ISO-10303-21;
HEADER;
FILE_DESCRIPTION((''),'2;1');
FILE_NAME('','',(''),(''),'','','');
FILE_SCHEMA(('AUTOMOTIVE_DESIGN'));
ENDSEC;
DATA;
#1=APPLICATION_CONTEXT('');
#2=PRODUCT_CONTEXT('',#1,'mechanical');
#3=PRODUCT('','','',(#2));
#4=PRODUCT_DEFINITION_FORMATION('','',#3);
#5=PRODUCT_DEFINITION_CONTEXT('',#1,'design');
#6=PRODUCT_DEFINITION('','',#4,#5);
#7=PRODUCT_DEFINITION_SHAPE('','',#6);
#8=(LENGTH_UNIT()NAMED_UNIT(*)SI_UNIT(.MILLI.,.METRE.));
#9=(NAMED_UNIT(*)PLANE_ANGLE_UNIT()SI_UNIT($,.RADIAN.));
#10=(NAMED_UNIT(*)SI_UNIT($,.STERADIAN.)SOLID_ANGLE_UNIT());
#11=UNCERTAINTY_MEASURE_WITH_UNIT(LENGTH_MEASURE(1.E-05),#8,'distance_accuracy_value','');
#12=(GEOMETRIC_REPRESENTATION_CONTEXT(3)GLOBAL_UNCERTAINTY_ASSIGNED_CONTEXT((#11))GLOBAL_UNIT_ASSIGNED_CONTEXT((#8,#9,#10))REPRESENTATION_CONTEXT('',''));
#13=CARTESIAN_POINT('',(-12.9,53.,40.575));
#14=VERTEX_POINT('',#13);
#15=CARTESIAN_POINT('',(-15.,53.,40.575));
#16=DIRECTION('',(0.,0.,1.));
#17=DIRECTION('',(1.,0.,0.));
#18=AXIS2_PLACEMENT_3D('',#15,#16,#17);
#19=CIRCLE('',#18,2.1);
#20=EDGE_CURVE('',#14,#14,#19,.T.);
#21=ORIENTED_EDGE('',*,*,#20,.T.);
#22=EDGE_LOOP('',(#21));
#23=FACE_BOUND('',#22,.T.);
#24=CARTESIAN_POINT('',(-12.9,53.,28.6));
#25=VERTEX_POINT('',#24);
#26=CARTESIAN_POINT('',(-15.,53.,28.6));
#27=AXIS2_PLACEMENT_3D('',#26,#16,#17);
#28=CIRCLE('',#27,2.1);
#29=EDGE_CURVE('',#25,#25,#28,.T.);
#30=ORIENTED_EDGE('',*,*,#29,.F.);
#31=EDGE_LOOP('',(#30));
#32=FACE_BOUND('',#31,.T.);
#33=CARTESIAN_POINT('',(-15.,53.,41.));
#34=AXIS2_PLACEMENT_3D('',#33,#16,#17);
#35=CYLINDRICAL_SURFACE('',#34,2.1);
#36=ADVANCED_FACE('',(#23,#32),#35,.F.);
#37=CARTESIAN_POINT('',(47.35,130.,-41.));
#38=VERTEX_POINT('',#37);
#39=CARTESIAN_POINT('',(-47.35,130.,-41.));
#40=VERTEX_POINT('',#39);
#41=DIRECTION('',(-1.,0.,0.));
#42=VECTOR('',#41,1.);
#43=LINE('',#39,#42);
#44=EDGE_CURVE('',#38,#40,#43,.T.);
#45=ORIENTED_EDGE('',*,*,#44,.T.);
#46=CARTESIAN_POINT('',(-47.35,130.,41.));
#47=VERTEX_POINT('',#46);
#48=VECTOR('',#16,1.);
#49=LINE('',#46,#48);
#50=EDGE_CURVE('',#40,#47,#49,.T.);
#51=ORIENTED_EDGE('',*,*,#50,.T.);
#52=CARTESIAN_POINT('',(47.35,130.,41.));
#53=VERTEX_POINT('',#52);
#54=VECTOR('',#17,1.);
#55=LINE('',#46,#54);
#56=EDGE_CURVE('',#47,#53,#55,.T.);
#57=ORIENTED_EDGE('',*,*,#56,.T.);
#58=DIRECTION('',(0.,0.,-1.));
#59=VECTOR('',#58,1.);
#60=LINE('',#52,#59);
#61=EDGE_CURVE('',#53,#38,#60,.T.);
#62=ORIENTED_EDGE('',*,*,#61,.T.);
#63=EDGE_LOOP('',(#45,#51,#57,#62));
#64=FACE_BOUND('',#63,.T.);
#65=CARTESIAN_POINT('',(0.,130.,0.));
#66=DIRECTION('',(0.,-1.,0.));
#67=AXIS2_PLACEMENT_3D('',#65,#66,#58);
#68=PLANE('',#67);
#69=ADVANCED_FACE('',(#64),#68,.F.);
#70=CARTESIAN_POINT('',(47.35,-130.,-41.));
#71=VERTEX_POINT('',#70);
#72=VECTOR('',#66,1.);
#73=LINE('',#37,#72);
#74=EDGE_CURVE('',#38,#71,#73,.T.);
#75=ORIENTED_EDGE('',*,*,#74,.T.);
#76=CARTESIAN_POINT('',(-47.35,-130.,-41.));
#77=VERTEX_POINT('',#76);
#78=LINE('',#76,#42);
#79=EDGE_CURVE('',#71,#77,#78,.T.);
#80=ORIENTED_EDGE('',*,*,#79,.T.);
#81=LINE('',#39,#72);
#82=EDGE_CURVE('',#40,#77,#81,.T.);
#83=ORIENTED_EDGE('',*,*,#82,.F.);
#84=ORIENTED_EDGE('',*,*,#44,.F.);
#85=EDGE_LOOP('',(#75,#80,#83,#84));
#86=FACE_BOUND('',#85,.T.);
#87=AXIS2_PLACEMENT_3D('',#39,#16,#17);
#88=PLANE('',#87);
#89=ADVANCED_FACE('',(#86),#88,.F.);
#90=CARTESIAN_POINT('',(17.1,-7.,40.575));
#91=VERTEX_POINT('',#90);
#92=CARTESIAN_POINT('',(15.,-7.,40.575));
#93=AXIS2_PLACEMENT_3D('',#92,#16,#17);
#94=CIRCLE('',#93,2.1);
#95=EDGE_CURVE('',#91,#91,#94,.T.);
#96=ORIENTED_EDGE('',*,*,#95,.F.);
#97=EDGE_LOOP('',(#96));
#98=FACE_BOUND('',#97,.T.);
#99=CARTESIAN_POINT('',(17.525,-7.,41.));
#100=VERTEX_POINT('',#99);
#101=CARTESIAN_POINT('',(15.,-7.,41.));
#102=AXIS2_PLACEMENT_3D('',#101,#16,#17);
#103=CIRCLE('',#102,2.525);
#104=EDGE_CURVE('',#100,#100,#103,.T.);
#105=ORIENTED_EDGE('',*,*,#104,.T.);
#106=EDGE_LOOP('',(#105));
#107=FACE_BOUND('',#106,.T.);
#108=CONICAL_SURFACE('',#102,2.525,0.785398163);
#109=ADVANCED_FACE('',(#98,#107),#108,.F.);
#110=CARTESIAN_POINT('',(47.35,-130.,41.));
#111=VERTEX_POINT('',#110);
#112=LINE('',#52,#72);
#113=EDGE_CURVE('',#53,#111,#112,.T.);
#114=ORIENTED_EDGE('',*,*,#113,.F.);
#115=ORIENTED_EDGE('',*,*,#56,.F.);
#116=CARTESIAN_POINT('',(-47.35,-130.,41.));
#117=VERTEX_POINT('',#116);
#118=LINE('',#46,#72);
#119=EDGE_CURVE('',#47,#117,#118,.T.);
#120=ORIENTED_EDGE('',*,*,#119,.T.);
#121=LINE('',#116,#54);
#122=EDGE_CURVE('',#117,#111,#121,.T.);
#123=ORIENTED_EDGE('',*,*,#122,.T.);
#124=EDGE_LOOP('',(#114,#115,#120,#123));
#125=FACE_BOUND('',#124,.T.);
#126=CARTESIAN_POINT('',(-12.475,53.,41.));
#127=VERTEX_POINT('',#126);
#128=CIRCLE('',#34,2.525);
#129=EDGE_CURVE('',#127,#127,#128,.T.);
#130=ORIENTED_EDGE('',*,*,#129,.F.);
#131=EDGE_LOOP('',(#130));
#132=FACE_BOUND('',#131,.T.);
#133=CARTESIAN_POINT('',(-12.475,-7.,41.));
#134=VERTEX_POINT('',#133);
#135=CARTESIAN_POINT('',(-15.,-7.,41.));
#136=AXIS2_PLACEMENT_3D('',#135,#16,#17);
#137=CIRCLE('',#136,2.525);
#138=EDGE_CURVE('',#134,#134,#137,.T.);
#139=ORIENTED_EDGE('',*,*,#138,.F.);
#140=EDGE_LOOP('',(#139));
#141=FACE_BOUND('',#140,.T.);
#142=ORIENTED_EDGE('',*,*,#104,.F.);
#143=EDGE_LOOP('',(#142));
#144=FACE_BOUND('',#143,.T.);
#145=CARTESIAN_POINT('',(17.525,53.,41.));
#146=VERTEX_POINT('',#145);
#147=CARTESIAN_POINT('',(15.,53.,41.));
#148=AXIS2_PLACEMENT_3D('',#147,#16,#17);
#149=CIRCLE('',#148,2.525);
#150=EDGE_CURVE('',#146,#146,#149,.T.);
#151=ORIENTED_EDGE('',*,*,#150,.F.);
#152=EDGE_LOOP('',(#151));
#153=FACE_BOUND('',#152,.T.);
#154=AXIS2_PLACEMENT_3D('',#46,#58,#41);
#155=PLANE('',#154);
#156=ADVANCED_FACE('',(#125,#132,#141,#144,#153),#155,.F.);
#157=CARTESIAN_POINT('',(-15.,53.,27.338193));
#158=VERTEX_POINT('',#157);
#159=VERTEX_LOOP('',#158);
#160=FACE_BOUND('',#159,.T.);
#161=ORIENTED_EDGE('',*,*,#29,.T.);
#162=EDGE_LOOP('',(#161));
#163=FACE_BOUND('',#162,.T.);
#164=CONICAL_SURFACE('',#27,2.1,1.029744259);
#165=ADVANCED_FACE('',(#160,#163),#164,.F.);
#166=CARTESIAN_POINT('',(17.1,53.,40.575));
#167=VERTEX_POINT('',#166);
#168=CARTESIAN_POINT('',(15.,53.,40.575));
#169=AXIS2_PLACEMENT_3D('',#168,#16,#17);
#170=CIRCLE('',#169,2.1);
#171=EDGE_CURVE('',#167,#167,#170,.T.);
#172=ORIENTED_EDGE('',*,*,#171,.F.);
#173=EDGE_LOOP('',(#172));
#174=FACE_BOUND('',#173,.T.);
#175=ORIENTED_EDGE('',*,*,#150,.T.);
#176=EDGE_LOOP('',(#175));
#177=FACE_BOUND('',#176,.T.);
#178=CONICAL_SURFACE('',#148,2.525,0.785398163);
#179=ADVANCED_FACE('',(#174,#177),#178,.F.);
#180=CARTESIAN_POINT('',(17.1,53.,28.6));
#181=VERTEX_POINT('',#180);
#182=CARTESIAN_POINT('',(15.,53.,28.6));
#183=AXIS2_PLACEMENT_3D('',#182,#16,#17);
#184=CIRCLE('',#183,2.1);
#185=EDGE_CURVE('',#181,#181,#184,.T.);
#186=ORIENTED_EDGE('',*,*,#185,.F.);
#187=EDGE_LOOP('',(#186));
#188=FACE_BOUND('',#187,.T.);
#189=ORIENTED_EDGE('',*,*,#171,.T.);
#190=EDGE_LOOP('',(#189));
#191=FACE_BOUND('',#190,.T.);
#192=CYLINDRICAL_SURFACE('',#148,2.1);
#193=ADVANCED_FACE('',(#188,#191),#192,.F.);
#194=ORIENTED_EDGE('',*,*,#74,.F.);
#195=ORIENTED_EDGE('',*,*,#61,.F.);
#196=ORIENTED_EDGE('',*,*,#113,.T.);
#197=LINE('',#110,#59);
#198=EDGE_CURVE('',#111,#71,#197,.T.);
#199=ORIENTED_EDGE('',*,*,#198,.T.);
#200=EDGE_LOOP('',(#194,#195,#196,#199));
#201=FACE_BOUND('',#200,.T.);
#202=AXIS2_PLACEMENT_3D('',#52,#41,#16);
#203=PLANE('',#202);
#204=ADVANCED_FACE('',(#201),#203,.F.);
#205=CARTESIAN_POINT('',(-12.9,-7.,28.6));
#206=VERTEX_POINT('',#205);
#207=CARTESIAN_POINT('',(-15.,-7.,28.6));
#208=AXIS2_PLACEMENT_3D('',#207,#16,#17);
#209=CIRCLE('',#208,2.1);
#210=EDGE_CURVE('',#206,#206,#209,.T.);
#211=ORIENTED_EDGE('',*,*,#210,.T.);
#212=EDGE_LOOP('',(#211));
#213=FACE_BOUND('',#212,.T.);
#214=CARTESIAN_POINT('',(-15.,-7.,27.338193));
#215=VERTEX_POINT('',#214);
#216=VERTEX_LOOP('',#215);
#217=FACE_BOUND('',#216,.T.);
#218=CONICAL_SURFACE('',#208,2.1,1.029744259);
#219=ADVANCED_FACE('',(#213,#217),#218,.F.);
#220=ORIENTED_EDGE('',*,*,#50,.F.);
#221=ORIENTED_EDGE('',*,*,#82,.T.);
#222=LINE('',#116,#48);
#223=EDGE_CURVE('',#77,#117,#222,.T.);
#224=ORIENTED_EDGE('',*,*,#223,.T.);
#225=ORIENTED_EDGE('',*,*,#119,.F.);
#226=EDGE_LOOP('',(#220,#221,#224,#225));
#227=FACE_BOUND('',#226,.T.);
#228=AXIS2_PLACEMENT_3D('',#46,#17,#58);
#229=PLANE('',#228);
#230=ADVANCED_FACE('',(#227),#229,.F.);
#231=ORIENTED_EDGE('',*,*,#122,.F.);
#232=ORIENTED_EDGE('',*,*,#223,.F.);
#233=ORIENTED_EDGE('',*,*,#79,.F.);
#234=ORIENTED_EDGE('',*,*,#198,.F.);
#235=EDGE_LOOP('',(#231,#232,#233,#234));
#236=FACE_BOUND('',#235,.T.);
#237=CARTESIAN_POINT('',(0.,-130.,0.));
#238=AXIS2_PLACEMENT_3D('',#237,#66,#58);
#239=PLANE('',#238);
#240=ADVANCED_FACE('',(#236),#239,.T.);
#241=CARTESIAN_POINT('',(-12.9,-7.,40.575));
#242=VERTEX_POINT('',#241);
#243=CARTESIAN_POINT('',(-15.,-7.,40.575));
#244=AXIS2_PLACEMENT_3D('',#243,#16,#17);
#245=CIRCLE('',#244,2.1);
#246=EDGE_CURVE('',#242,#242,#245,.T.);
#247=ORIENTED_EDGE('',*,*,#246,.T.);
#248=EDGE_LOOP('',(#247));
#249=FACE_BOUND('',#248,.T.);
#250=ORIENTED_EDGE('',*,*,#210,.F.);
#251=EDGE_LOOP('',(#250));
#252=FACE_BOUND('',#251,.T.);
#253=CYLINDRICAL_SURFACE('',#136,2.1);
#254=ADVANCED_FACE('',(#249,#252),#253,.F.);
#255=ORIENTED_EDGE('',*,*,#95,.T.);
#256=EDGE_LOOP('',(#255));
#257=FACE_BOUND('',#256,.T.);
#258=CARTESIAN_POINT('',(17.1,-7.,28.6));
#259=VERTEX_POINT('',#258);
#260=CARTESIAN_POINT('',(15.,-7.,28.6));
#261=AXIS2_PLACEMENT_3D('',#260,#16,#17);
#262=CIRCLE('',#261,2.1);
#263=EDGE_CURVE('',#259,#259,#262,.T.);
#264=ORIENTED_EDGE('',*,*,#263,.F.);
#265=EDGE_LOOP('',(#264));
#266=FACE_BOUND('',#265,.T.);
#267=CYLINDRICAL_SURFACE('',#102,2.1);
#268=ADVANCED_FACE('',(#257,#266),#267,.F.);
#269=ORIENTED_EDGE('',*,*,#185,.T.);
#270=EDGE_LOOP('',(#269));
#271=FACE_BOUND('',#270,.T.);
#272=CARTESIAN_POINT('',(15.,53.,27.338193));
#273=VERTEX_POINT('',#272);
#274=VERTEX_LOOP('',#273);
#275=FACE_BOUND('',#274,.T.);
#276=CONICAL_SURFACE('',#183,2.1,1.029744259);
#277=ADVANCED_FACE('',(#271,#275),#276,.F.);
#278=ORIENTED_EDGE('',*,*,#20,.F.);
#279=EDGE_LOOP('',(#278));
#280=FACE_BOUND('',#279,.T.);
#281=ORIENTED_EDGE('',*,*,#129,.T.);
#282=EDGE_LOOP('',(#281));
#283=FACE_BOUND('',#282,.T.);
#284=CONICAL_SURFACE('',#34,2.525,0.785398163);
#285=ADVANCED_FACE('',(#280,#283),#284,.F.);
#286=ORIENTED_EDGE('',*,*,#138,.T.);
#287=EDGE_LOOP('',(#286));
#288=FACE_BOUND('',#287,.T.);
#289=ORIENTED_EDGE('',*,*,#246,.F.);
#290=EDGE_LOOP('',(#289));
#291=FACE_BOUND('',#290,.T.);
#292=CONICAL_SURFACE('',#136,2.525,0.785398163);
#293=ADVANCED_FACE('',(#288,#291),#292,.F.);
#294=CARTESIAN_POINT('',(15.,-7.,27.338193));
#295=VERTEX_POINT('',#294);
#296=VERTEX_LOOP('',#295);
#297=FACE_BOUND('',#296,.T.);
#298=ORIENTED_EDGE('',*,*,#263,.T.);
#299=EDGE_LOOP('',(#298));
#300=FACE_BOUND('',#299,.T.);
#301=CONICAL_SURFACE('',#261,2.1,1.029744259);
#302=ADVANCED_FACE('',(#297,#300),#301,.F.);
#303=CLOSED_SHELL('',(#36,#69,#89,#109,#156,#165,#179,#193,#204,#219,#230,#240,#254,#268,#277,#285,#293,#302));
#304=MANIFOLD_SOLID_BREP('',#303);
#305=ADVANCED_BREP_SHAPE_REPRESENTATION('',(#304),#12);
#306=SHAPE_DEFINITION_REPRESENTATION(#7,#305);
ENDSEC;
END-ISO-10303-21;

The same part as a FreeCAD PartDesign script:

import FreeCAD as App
import Part
import Sketcher

V = App.Vector
Q = App.Units.Quantity

doc = App.newDocument("Part")
params = doc.addObject("Spreadsheet::Sheet", "Params")
for row, (alias, value) in enumerate([
    ("sketch1_height", "82 mm"),
    ("sketch1_width", "94.7 mm"),
    ("pad1_length", "260 mm"),
    ("sketch2_diameter", "4.2 mm"),
    ("hole_diameter", "4.2 mm"),
    ("hole_depth", "12.4 mm"),
    ("hole_csink_diameter", "5.05 mm"),
], start=1):
    params.set(f"A{row}", alias)
    params.set(f"B{row}", "=" + value)
    params.setAlias(f"B{row}", alias)

body = doc.addObject("PartDesign::Body", "Body")

# Sketch on XZ plane
sketch1 = doc.addObject("Sketcher::SketchObject", "Sketch")
body.addObject(sketch1)
sketch1.AttachmentSupport = (doc.XZ_Plane, [""])
sketch1.MapMode = "FlatFace"
sketch1.addGeometry(Part.LineSegment(V(-47.35, -41, 0), V(-47.35, 41, 0)), False)
sketch1.addGeometry(Part.LineSegment(V(-47.35, 41, 0), V(47.35, 41, 0)), False)
sketch1.addGeometry(Part.LineSegment(V(47.35, 41, 0), V(47.35, -41, 0)), False)
sketch1.addGeometry(Part.LineSegment(V(47.35, -41, 0), V(-47.35, -41, 0)), False)
sketch1.addConstraint(Sketcher.Constraint("Coincident", 0, 2, 1, 1))
sketch1.addConstraint(Sketcher.Constraint("Coincident", 1, 2, 2, 1))
sketch1.addConstraint(Sketcher.Constraint("Coincident", 2, 2, 3, 1))
sketch1.addConstraint(Sketcher.Constraint("Coincident", 3, 2, 0, 1))
sketch1.addConstraint(Sketcher.Constraint("Vertical", 0))
sketch1.addConstraint(Sketcher.Constraint("Horizontal", 1))
sketch1.addConstraint(Sketcher.Constraint("Vertical", 2))
sketch1.addConstraint(Sketcher.Constraint("Horizontal", 3))
sketch1.addConstraint(Sketcher.Constraint("Symmetric", 0, 2, 2, 2, -1, 1))
sketch1.addConstraint(Sketcher.Constraint("DistanceY", 0, 1, 0, 2, Q("82 mm")))
sketch1.addConstraint(Sketcher.Constraint("DistanceX", 1, 1, 1, 2, Q("94.7 mm")))
sketch1.setExpression("Constraints[9]", "Params.sketch1_height")
sketch1.setExpression("Constraints[10]", "Params.sketch1_width")
pad1 = doc.addObject("PartDesign::Pad", "Pad")
body.addObject(pad1)
pad1.Profile = sketch1
pad1.setExpression("Length", "Params.pad1_length")
pad1.Midplane = True

# Sketch on XY plane
sketch2 = doc.addObject("Sketcher::SketchObject", "Sketch001")
body.addObject(sketch2)
sketch2.AttachmentSupport = (doc.XY_Plane, [""])
sketch2.MapMode = "FlatFace"
sketch2.AttachmentOffset = App.Placement(V(0, 0, 41), App.Rotation())
sketch2.addGeometry(Part.Circle(V(15, 53, 0), V(0, 0, 1), 2.1), False)
sketch2.addGeometry(Part.Circle(V(-15, 53, 0), V(0, 0, 1), 2.1), False)
sketch2.addGeometry(Part.Circle(V(-15, -7, 0), V(0, 0, 1), 2.1), False)
sketch2.addGeometry(Part.Circle(V(15, -7, 0), V(0, 0, 1), 2.1), False)
sketch2.addConstraint(Sketcher.Constraint("Equal", 0, 1))
sketch2.addConstraint(Sketcher.Constraint("Equal", 1, 2))
sketch2.addConstraint(Sketcher.Constraint("Equal", 2, 3))
sketch2.addConstraint(Sketcher.Constraint("Symmetric", 0, 3, 1, 3, -2))
sketch2.addConstraint(Sketcher.Constraint("Symmetric", 2, 3, 3, 3, -2))
sketch2.addConstraint(Sketcher.Constraint("Vertical", 1, 3, 2, 3))
sketch2.addConstraint(Sketcher.Constraint("Diameter", 0, Q("4.2 mm")))
sketch2.addConstraint(Sketcher.Constraint("DistanceX", -1, 1, 0, 3, Q("15 mm")))
sketch2.addConstraint(Sketcher.Constraint("DistanceY", -1, 1, 0, 3, Q("53 mm")))
sketch2.addConstraint(Sketcher.Constraint("DistanceY", 2, 3, -1, 1, Q("7 mm")))
sketch2.setExpression("Constraints[6]", "Params.sketch2_diameter")
doc.recompute()
hole = doc.addObject("PartDesign::Hole", "Hole")
body.addObject(hole)
hole.Profile = sketch2
hole.ThreadType = "None"
hole.setExpression("Diameter", "Params.hole_diameter")
hole.DepthType = "Dimension"
hole.setExpression("Depth", "Params.hole_depth")
hole.DrillPoint = "Angled"
hole.DrillPointAngle = 118
hole.HoleCutType = "Countersink"
hole.setExpression("HoleCutDiameter", "Params.hole_csink_diameter")
hole.HoleCutCountersinkAngle = 90

doc.recompute()
